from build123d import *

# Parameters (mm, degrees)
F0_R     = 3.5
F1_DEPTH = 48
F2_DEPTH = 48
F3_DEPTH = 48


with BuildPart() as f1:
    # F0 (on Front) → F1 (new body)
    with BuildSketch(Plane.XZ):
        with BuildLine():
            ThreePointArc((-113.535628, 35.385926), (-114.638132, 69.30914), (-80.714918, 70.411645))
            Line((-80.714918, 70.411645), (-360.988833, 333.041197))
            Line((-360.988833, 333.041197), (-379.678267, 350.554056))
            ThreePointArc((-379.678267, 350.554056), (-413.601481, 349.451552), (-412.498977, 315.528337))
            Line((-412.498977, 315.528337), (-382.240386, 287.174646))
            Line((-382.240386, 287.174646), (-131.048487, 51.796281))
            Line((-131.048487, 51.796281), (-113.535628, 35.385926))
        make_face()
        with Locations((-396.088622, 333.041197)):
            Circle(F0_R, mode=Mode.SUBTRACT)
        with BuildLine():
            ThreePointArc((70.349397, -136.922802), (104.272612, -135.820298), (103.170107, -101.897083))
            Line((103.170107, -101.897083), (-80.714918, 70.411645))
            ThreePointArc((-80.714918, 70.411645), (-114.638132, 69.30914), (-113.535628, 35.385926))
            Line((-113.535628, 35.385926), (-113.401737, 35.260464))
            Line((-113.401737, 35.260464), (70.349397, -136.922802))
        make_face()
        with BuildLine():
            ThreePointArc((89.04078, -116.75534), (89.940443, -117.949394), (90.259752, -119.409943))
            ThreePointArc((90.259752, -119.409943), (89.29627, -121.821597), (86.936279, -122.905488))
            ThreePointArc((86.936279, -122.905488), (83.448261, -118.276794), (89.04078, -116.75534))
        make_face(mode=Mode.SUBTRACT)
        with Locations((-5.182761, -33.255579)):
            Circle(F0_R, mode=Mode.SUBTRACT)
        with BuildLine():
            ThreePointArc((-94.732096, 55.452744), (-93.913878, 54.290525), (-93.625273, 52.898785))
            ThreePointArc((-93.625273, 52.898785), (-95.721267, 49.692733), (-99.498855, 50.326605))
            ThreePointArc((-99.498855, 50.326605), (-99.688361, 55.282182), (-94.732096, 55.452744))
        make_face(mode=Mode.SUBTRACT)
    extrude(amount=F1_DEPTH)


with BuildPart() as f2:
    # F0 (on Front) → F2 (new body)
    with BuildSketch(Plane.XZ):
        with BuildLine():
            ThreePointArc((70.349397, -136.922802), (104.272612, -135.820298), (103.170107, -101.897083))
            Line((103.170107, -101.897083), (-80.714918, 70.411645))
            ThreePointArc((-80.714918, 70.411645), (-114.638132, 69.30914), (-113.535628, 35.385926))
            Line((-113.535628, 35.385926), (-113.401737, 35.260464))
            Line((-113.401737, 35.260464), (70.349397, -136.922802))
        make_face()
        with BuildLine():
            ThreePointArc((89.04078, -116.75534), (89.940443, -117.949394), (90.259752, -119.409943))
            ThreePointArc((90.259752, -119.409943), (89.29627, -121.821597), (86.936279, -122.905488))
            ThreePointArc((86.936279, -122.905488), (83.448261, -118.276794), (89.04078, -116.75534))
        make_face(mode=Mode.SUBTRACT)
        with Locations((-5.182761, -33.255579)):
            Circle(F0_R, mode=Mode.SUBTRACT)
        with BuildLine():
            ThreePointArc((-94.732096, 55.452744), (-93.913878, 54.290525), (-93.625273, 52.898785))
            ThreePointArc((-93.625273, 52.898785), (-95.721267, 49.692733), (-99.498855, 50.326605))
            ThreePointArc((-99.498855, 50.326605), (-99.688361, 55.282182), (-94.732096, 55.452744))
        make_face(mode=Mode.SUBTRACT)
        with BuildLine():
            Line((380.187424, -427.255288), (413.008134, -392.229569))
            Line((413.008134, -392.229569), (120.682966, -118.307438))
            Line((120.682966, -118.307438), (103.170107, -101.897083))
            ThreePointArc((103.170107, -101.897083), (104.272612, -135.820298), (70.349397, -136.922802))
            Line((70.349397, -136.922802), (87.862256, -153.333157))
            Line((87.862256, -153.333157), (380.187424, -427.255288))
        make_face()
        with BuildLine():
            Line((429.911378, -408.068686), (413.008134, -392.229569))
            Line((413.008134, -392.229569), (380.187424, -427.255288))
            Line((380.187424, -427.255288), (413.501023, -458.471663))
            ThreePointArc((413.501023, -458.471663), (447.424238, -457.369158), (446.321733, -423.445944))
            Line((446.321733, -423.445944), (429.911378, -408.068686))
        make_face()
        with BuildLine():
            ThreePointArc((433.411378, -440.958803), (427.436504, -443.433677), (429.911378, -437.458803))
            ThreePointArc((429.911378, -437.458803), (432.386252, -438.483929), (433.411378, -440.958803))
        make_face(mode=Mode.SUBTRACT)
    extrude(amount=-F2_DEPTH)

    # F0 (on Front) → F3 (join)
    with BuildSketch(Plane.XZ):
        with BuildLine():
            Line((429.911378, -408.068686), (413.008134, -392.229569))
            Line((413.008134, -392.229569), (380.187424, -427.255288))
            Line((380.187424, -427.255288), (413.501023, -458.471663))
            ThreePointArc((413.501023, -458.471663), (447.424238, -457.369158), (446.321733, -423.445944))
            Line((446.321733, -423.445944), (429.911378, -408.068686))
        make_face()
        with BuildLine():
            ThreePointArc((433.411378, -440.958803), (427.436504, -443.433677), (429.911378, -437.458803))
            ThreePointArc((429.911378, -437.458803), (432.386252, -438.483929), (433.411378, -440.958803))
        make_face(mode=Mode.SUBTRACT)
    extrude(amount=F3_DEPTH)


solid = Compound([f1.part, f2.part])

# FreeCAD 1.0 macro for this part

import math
import FreeCAD as App
import Part
import Sketcher
from FreeCAD import Vector

doc = App.newDocument("Part")
body = doc.addObject("PartDesign::Body", "Body")

# Sketch on XZ plane
sketch1 = doc.addObject("Sketcher::SketchObject", "Sketch")
body.addObject(sketch1)
sketch1.AttachmentSupport = (doc.XZ_Plane, [""])
sketch1.MapMode = "FlatFace"
sketch1.addGeometry(Part.LineSegment(Vector(-131.05, 51.8, 0), Vector(-113.54, 35.39, 0)), False)
sketch1.addGeometry(Part.LineSegment(Vector(-113.54, 35.39, 0), Vector(-113.4, 35.26, 0)), False)
sketch1.addGeometry(Part.LineSegment(Vector(-113.4, 35.26, 0), Vector(70.35, -136.92, 0)), False)
sketch1.addGeometry(Part.ArcOfCircle(Part.Circle(Vector(86.76, -119.41, 0), Vector(0, 0, 1), 24), math.radians(-133), math.radians(47)), False)
sketch1.addGeometry(Part.LineSegment(Vector(103.17, -101.9, 0), Vector(-80.71, 70.41, 0)), False)
sketch1.addGeometry(Part.LineSegment(Vector(-80.71, 70.41, 0), Vector(-360.99, 333.04, 0)), False)
sketch1.addGeometry(Part.LineSegment(Vector(-360.99, 333.04, 0), Vector(-379.68, 350.55, 0)), False)
sketch1.addGeometry(Part.ArcOfCircle(Part.Circle(Vector(-396.09, 333.04, 0), Vector(0, 0, 1), 24), math.radians(47), math.radians(227)), False)
sketch1.addGeometry(Part.LineSegment(Vector(-412.5, 315.53, 0), Vector(-382.24, 287.17, 0)), False)
sketch1.addGeometry(Part.LineSegment(Vector(-382.24, 287.17, 0), Vector(-131.05, 51.8, 0)), False)
sketch1.addGeometry(Part.ArcOfCircle(Part.Circle(Vector(86.76, -119.41, 0), Vector(0, 0, 1), 3.5), math.radians(49), math.radians(273)), False)
sketch1.addGeometry(Part.ArcOfCircle(Part.Circle(Vector(86.76, -119.41, 0), Vector(0, 0, 1), 3.5), math.radians(0), math.radians(49)), False)
sketch1.addGeometry(Part.ArcOfCircle(Part.Circle(Vector(86.76, -119.41, 0), Vector(0, 0, 1), 3.5), math.radians(-87), math.radians(0)), False)
sketch1.addGeometry(Part.Circle(Vector(-5.18, -33.26, 0), Vector(0, 0, 1), 3.5), False)
sketch1.addGeometry(Part.ArcOfCircle(Part.Circle(Vector(-97.13, 52.9, 0), Vector(0, 0, 1), 3.5), math.radians(47), math.radians(227)), False)
sketch1.addGeometry(Part.ArcOfCircle(Part.Circle(Vector(-97.13, 52.9, 0), Vector(0, 0, 1), 3.5), math.radians(0), math.radians(47)), False)
sketch1.addGeometry(Part.ArcOfCircle(Part.Circle(Vector(-97.13, 52.9, 0), Vector(0, 0, 1), 3.5), math.radians(-133), math.radians(0)), False)
sketch1.addGeometry(Part.Circle(Vector(-396.09, 333.04, 0), Vector(0, 0, 1), 3.5), False)
sketch1.addConstraint(Sketcher.Constraint("Coincident", 0, 2, 1, 1))
sketch1.addConstraint(Sketcher.Constraint("Coincident", 1, 2, 2, 1))
sketch1.addConstraint(Sketcher.Constraint("Tangent", 2, 2, 3, 1))
sketch1.addConstraint(Sketcher.Constraint("Tangent", 3, 2, 4, 1))
sketch1.addConstraint(Sketcher.Constraint("Coincident", 4, 2, 5, 1))
sketch1.addConstraint(Sketcher.Constraint("Coincident", 5, 2, 6, 1))
sketch1.addConstraint(Sketcher.Constraint("Tangent", 6, 2, 7, 1))
sketch1.addConstraint(Sketcher.Constraint("Tangent", 7, 2, 8, 1))
sketch1.addConstraint(Sketcher.Constraint("Coincident", 8, 2, 9, 1))
sketch1.addConstraint(Sketcher.Constraint("Coincident", 9, 2, 0, 1))
sketch1.addConstraint(Sketcher.Constraint("Tangent", 10, 1, 11, 2))
sketch1.addConstraint(Sketcher.Constraint("Tangent", 11, 1, 12, 2))
sketch1.addConstraint(Sketcher.Constraint("Tangent", 12, 1, 10, 2))
sketch1.addConstraint(Sketcher.Constraint("Tangent", 14, 1, 15, 2))
sketch1.addConstraint(Sketcher.Constraint("Tangent", 15, 1, 16, 2))
sketch1.addConstraint(Sketcher.Constraint("Tangent", 16, 1, 14, 2))
sketch1.addConstraint(Sketcher.Constraint("Coincident", 10, 3, 3, 3))
sketch1.addConstraint(Sketcher.Constraint("Coincident", 17, 3, 7, 3))
sketch1.addConstraint(Sketcher.Constraint("Equal", 3, 7))
sketch1.addConstraint(Sketcher.Constraint("Equal", 12, 13))
sketch1.addConstraint(Sketcher.Constraint("Equal", 13, 14))
sketch1.addConstraint(Sketcher.Constraint("Equal", 16, 17))
sketch1.addConstraint(Sketcher.Constraint("Parallel", 0, 1))
sketch1.addConstraint(Sketcher.Constraint("Parallel", 1, 2))
sketch1.addConstraint(Sketcher.Constraint("Parallel", 2, 4))
sketch1.addConstraint(Sketcher.Constraint("Parallel", 4, 5))
sketch1.addConstraint(Sketcher.Constraint("Parallel", 5, 6))
sketch1.addConstraint(Sketcher.Constraint("Parallel", 6, 8))
sketch1.addConstraint(Sketcher.Constraint("Horizontal", 17, 3, 5, 2))
sketch1.addConstraint(Sketcher.Constraint("Horizontal", 12, 3, 11, 1))
sketch1.addConstraint(Sketcher.Constraint("Horizontal", 16, 3, 15, 1))
sketch1.addConstraint(Sketcher.Constraint("Diameter", 13, 7.0))
sketch1.addConstraint(Sketcher.Constraint("Radius", 3, 24.0))
sketch1.addConstraint(Sketcher.Constraint("Distance", 0, 24.0))
sketch1.addConstraint(Sketcher.Constraint("Distance", 4, 252.0))
sketch1.addConstraint(Sketcher.Constraint("DistanceY", 2, 2, -1, 1, 136.922802))
sketch1.addConstraint(Sketcher.Constraint("DistanceY", 14, 1, 4, 2, 14.958901))
sketch1.addConstraint(Sketcher.Constraint("Distance", 5, 384.093412))
sketch1.addConstraint(Sketcher.Constraint("Distance", 9, 344.23879))
sketch1.addConstraint(Sketcher.Constraint("DistanceX", 7, 3, -1, 1, 396.088622))
sketch1.addConstraint(Sketcher.Constraint("DistanceX", 13, 3, -1, 1, 5.182761))
sketch1.addConstraint(Sketcher.Constraint("DistanceY", 13, 3, -1, 1, 33.255579))
sketch1.addConstraint(Sketcher.Constraint("DistanceX", 15, 3, -1, 1, 97.125278))
sketch1.addConstraint(Sketcher.Constraint("DistanceX", 0, 2, -1, 1, 113.535628))
sketch1.addConstraint(Sketcher.Constraint("DistanceY", -1, 1, 9, 2, 51.796281))
sketch1.addConstraint(Sketcher.Constraint("DistanceX", -1, 1, 10, 1, 89.04078))
sketch1.addConstraint(Sketcher.Constraint("DistanceX", -1, 1, 12, 1, 86.936279))
sketch1.addConstraint(Sketcher.Constraint("DistanceY", 11, 3, 14, 3, 172.30873))
sketch1.addConstraint(Sketcher.Constraint("DistanceX", 0, 2, 1, 2, 0.133891))
sketch1.addConstraint(Sketcher.Constraint("DistanceY", 16, 1, 15, 3, 2.572178))
pad1 = doc.addObject("PartDesign::Pad", "Pad")
body.addObject(pad1)
pad1.Profile = sketch1
pad1.Length = 48
body2 = doc.addObject("PartDesign::Body", "Body001")

# Sketch on XZ plane
sketch2 = doc.addObject("Sketcher::SketchObject", "Sketch001")
body2.addObject(sketch2)
sketch2.AttachmentSupport = (doc.getObject("XZ_Plane001"), [""])
sketch2.MapMode = "FlatFace"
sketch2.addGeometry(Part.LineSegment(Vector(-113.4, 35.26, 0), Vector(70.35, -136.92, 0)), False)
sketch2.addGeometry(Part.LineSegment(Vector(70.35, -136.92, 0), Vector(87.86, -153.33, 0)), False)
sketch2.addGeometry(Part.LineSegment(Vector(87.86, -153.33, 0), Vector(380.19, -427.26, 0)), False)
sketch2.addGeometry(Part.LineSegment(Vector(380.19, -427.26, 0), Vector(413.5, -458.47, 0)), False)
sketch2.addGeometry(Part.ArcOfCircle(Part.Circle(Vector(429.91, -440.96, 0), Vector(0, 0, 1), 24), math.radians(-133), math.radians(47)), False)
sketch2.addGeometry(Part.LineSegment(Vector(446.32, -423.45, 0), Vector(429.91, -408.07, 0)), False)
sketch2.addGeometry(Part.LineSegment(Vector(429.91, -408.07, 0), Vector(413.01, -392.23, 0)), False)
sketch2.addGeometry(Part.LineSegment(Vector(413.01, -392.23, 0), Vector(120.68, -118.31, 0)), False)
sketch2.addGeometry(Part.LineSegment(Vector(120.68, -118.31, 0), Vector(103.17, -101.9, 0)), False)
sketch2.addGeometry(Part.LineSegment(Vector(103.17, -101.9, 0), Vector(-80.71, 70.41, 0)), False)
sketch2.addGeometry(Part.ArcOfCircle(Part.Circle(Vector(-97.13, 52.9, 0), Vector(0, 0, 1), 24), math.radians(47), math.radians(227)), False)
sketch2.addGeometry(Part.LineSegment(Vector(-113.54, 35.39, 0), Vector(-113.4, 35.26, 0)), False)
sketch2.addGeometry(Part.ArcOfCircle(Part.Circle(Vector(429.91, -440.96, 0), Vector(0, 0, 1), 3.5), math.radians(0), math.radians(90)), False)
sketch2.addGeometry(Part.ArcOfCircle(Part.Circle(Vector(429.91, -440.96, 0), Vector(0, 0, 1), 3.5), math.radians(90), math.radians(360)), False)
sketch2.addGeometry(Part.ArcOfCircle(Part.Circle(Vector(86.76, -119.41, 0), Vector(0, 0, 1), 3.5), math.radians(49), math.radians(273)), False)
sketch2.addGeometry(Part.ArcOfCircle(Part.Circle(Vector(86.76, -119.41, 0), Vector(0, 0, 1), 3.5), math.radians(0), math.radians(49)), False)
sketch2.addGeometry(Part.ArcOfCircle(Part.Circle(Vector(86.76, -119.41, 0), Vector(0, 0, 1), 3.5), math.radians(-87), math.radians(0)), False)
sketch2.addGeometry(Part.Circle(Vector(-5.18, -33.26, 0), Vector(0, 0, 1), 3.5), False)
sketch2.addGeometry(Part.ArcOfCircle(Part.Circle(Vector(-97.13, 52.9, 0), Vector(0, 0, 1), 3.5), math.radians(47), math.radians(227)), False)
sketch2.addGeometry(Part.ArcOfCircle(Part.Circle(Vector(-97.13, 52.9, 0), Vector(0, 0, 1), 3.5), math.radians(0), math.radians(47)), False)
sketch2.addGeometry(Part.ArcOfCircle(Part.Circle(Vector(-97.13, 52.9, 0), Vector(0, 0, 1), 3.5), math.radians(-133), math.radians(0)), False)
sketch2.addConstraint(Sketcher.Constraint("Coincident", 0, 2, 1, 1))
sketch2.addConstraint(Sketcher.Constraint("Coincident", 1, 2, 2, 1))
sketch2.addConstraint(Sketcher.Constraint("Coincident", 2, 2, 3, 1))
sketch2.addConstraint(Sketcher.Constraint("Tangent", 3, 2, 4, 1))
sketch2.addConstraint(Sketcher.Constraint("Tangent", 4, 2, 5, 1))
sketch2.addConstraint(Sketcher.Constraint("Coincident", 5, 2, 6, 1))
sketch2.addConstraint(Sketcher.Constraint("Coincident", 6, 2, 7, 1))
sketch2.addConstraint(Sketcher.Constraint("Coincident", 7, 2, 8, 1))
sketch2.addConstraint(Sketcher.Constraint("Coincident", 8, 2, 9, 1))
sketch2.addConstraint(Sketcher.Constraint("Tangent", 9, 2, 10, 1))
sketch2.addConstraint(Sketcher.Constraint("Tangent", 10, 2, 11, 1))
sketch2.addConstraint(Sketcher.Constraint("Coincident", 11, 2, 0, 1))
sketch2.addConstraint(Sketcher.Constraint("Tangent", 12, 1, 13, 2))
sketch2.addConstraint(Sketcher.Constraint("Coincident", 13, 1, 12, 2))
sketch2.addConstraint(Sketcher.Constraint("Tangent", 14, 1, 15, 2))
sketch2.addConstraint(Sketcher.Constraint("Tangent", 15, 1, 16, 2))
sketch2.addConstraint(Sketcher.Constraint("Tangent", 16, 1, 14, 2))
sketch2.addConstraint(Sketcher.Constraint("Tangent", 18, 1, 19, 2))
sketch2.addConstraint(Sketcher.Constraint("Tangent", 19, 1, 20, 2))
sketch2.addConstraint(Sketcher.Constraint("Tangent", 20, 1, 18, 2))
sketch2.addConstraint(Sketcher.Constraint("Coincident", 12, 3, 4, 3))
sketch2.addConstraint(Sketcher.Constraint("Coincident", 18, 3, 10, 3))
sketch2.addConstraint(Sketcher.Constraint("Equal", 4, 10))
sketch2.addConstraint(Sketcher.Constraint("Equal", 13, 14))
sketch2.addConstraint(Sketcher.Constraint("Equal", 16, 17))
sketch2.addConstraint(Sketcher.Constraint("Equal", 17, 18))
sketch2.addConstraint(Sketcher.Constraint("Parallel", 0, 1))
sketch2.addConstraint(Sketcher.Constraint("Parallel", 1, 2))
sketch2.addConstraint(Sketcher.Constraint("Parallel", 2, 3))
sketch2.addConstraint(Sketcher.Constraint("Parallel", 3, 5))
sketch2.addConstraint(Sketcher.Constraint("Parallel", 5, 6))
sketch2.addConstraint(Sketcher.Constraint("Parallel", 6, 7))
sketch2.addConstraint(Sketcher.Constraint("Parallel", 7, 8))
sketch2.addConstraint(Sketcher.Constraint("Parallel", 7, 9))
sketch2.addConstraint(Sketcher.Constraint("Horizontal", 13, 3, 12, 1))
sketch2.addConstraint(Sketcher.Constraint("Horizontal", 16, 3, 15, 1))
sketch2.addConstraint(Sketcher.Constraint("Horizontal", 20, 3, 19, 1))
sketch2.addConstraint(Sketcher.Constraint("Vertical", 13, 3, 5, 2))
sketch2.addConstraint(Sketcher.Constraint("Vertical", 5, 2, 13, 1))
sketch2.addConstraint(Sketcher.Constraint("Equal", 2, 7))
sketch2.addConstraint(Sketcher.Constraint("Equal", 1, 8))
sketch2.addConstraint(Sketcher.Constraint("Diameter", 17, 7.0))
sketch2.addConstraint(Sketcher.Constraint("Radius", 4, 24.0))
sketch2.addConstraint(Sketcher.Constraint("Distance", 1, 24.0))
sketch2.addConstraint(Sketcher.Constraint("Distance", 9, 252.0))
sketch2.addConstraint(Sketcher.Constraint("DistanceY", 0, 2, -1, 1, 136.922802))
sketch2.addConstraint(Sketcher.Constraint("DistanceX", 2, 2, 3, 2, 33.313599))
sketch2.addConstraint(Sketcher.Constraint("DistanceX", 6, 2, 4, 2, 33.313599))
sketch2.addConstraint(Sketcher.Constraint("DistanceX", 16, 1, 14, 1, 2.104501))
sketch2.addConstraint(Sketcher.Constraint("DistanceY", 18, 1, 9, 2, 14.958901))
sketch2.addConstraint(Sketcher.Constraint("Distance", 2, 400.608709))
sketch2.addConstraint(Sketcher.Constraint("DistanceX", -1, 1, 4, 3, 429.911378))
sketch2.addConstraint(Sketcher.Constraint("DistanceX", 17, 3, -1, 1, 5.182761))
sketch2.addConstraint(Sketcher.Constraint("DistanceY", 17, 3, -1, 1, 33.255579))
sketch2.addConstraint(Sketcher.Constraint("DistanceX", 19, 3, -1, 1, 97.125278))
sketch2.addConstraint(Sketcher.Constraint("DistanceX", -1, 1, 14, 1, 89.04078))
sketch2.addConstraint(Sketcher.Constraint("DistanceY", 14, 1, -1, 1, 116.75534))
sketch2.addConstraint(Sketcher.Constraint("DistanceX", -1, 1, 15, 1, 90.259752))
sketch2.addConstraint(Sketcher.Constraint("DistanceX", 10, 2, 11, 2, 0.133891))
sketch2.addConstraint(Sketcher.Constraint("DistanceY", 20, 1, 19, 3, 2.572178))
pad2 = doc.addObject("PartDesign::Pad", "Pad001")
body2.addObject(pad2)
pad2.Profile = sketch2
pad2.Length = 48
pad2.Reversed = True

# Sketch on XZ plane
sketch3 = doc.addObject("Sketcher::SketchObject", "Sketch002")
body2.addObject(sketch3)
sketch3.AttachmentSupport = (doc.getObject("XZ_Plane001"), [""])
sketch3.MapMode = "FlatFace"
sketch3.addGeometry(Part.LineSegment(Vector(429.9, -408.1, 0), Vector(413, -392.2, 0)), False)
sketch3.addGeometry(Part.LineSegment(Vector(413, -392.2, 0), Vector(380.2, -427.3, 0)), False)
sketch3.addGeometry(Part.LineSegment(Vector(380.2, -427.3, 0), Vector(413.5, -458.5, 0)), False)
sketch3.addGeometry(Part.ArcOfCircle(Part.Circle(Vector(429.9, -441, 0), Vector(0, 0, 1), 24), math.radians(-133), math.radians(47)), False)
sketch3.addGeometry(Part.LineSegment(Vector(446.3, -423.4, 0), Vector(429.9, -408.1, 0)), False)
sketch3.addGeometry(Part.ArcOfCircle(Part.Circle(Vector(429.9, -441, 0), Vector(0, 0, 1), 3.5), math.radians(0), math.radians(90)), False)
sketch3.addGeometry(Part.ArcOfCircle(Part.Circle(Vector(429.9, -441, 0), Vector(0, 0, 1), 3.5), math.radians(90), math.radians(360)), False)
sketch3.addConstraint(Sketcher.Constraint("Coincident", 0, 2, 1, 1))
sketch3.addConstraint(Sketcher.Constraint("Coincident", 1, 2, 2, 1))
sketch3.addConstraint(Sketcher.Constraint("Tangent", 2, 2, 3, 1))
sketch3.addConstraint(Sketcher.Constraint("Tangent", 3, 2, 4, 1))
sketch3.addConstraint(Sketcher.Constraint("Coincident", 4, 2, 0, 1))
sketch3.addConstraint(Sketcher.Constraint("Tangent", 5, 1, 6, 2))
sketch3.addConstraint(Sketcher.Constraint("Coincident", 6, 1, 5, 2))
sketch3.addConstraint(Sketcher.Constraint("Coincident", 5, 3, 3, 3))
sketch3.addConstraint(Sketcher.Constraint("Perpendicular", 0, 1))
sketch3.addConstraint(Sketcher.Constraint("Perpendicular", 1, 2))
sketch3.addConstraint(Sketcher.Constraint("Parallel", 2, 4))
sketch3.addConstraint(Sketcher.Constraint("Horizontal", 6, 3, 5, 1))
sketch3.addConstraint(Sketcher.Constraint("Vertical", 6, 3, 4, 2))
sketch3.addConstraint(Sketcher.Constraint("Vertical", 4, 2, 6, 1))
sketch3.addConstraint(Sketcher.Constraint("Radius", 3, 24.0))
sketch3.addConstraint(Sketcher.Constraint("Radius", 5, 3.499999))
sketch3.addConstraint(Sketcher.Constraint("DistanceX", 1, 2, 2, 2, 33.313599))
sketch3.addConstraint(Sketcher.Constraint("Distance", 0, 23.16457))
sketch3.addConstraint(Sketcher.Constraint("DistanceX", -1, 1, 3, 3, 429.911378))
sketch3.addConstraint(Sketcher.Constraint("DistanceY", 0, 2, -1, 1, 392.229569))
pad3 = doc.addObject("PartDesign::Pad", "Pad002")
body2.addObject(pad3)
pad3.Profile = sketch3
pad3.Length = 48

doc.recompute()
